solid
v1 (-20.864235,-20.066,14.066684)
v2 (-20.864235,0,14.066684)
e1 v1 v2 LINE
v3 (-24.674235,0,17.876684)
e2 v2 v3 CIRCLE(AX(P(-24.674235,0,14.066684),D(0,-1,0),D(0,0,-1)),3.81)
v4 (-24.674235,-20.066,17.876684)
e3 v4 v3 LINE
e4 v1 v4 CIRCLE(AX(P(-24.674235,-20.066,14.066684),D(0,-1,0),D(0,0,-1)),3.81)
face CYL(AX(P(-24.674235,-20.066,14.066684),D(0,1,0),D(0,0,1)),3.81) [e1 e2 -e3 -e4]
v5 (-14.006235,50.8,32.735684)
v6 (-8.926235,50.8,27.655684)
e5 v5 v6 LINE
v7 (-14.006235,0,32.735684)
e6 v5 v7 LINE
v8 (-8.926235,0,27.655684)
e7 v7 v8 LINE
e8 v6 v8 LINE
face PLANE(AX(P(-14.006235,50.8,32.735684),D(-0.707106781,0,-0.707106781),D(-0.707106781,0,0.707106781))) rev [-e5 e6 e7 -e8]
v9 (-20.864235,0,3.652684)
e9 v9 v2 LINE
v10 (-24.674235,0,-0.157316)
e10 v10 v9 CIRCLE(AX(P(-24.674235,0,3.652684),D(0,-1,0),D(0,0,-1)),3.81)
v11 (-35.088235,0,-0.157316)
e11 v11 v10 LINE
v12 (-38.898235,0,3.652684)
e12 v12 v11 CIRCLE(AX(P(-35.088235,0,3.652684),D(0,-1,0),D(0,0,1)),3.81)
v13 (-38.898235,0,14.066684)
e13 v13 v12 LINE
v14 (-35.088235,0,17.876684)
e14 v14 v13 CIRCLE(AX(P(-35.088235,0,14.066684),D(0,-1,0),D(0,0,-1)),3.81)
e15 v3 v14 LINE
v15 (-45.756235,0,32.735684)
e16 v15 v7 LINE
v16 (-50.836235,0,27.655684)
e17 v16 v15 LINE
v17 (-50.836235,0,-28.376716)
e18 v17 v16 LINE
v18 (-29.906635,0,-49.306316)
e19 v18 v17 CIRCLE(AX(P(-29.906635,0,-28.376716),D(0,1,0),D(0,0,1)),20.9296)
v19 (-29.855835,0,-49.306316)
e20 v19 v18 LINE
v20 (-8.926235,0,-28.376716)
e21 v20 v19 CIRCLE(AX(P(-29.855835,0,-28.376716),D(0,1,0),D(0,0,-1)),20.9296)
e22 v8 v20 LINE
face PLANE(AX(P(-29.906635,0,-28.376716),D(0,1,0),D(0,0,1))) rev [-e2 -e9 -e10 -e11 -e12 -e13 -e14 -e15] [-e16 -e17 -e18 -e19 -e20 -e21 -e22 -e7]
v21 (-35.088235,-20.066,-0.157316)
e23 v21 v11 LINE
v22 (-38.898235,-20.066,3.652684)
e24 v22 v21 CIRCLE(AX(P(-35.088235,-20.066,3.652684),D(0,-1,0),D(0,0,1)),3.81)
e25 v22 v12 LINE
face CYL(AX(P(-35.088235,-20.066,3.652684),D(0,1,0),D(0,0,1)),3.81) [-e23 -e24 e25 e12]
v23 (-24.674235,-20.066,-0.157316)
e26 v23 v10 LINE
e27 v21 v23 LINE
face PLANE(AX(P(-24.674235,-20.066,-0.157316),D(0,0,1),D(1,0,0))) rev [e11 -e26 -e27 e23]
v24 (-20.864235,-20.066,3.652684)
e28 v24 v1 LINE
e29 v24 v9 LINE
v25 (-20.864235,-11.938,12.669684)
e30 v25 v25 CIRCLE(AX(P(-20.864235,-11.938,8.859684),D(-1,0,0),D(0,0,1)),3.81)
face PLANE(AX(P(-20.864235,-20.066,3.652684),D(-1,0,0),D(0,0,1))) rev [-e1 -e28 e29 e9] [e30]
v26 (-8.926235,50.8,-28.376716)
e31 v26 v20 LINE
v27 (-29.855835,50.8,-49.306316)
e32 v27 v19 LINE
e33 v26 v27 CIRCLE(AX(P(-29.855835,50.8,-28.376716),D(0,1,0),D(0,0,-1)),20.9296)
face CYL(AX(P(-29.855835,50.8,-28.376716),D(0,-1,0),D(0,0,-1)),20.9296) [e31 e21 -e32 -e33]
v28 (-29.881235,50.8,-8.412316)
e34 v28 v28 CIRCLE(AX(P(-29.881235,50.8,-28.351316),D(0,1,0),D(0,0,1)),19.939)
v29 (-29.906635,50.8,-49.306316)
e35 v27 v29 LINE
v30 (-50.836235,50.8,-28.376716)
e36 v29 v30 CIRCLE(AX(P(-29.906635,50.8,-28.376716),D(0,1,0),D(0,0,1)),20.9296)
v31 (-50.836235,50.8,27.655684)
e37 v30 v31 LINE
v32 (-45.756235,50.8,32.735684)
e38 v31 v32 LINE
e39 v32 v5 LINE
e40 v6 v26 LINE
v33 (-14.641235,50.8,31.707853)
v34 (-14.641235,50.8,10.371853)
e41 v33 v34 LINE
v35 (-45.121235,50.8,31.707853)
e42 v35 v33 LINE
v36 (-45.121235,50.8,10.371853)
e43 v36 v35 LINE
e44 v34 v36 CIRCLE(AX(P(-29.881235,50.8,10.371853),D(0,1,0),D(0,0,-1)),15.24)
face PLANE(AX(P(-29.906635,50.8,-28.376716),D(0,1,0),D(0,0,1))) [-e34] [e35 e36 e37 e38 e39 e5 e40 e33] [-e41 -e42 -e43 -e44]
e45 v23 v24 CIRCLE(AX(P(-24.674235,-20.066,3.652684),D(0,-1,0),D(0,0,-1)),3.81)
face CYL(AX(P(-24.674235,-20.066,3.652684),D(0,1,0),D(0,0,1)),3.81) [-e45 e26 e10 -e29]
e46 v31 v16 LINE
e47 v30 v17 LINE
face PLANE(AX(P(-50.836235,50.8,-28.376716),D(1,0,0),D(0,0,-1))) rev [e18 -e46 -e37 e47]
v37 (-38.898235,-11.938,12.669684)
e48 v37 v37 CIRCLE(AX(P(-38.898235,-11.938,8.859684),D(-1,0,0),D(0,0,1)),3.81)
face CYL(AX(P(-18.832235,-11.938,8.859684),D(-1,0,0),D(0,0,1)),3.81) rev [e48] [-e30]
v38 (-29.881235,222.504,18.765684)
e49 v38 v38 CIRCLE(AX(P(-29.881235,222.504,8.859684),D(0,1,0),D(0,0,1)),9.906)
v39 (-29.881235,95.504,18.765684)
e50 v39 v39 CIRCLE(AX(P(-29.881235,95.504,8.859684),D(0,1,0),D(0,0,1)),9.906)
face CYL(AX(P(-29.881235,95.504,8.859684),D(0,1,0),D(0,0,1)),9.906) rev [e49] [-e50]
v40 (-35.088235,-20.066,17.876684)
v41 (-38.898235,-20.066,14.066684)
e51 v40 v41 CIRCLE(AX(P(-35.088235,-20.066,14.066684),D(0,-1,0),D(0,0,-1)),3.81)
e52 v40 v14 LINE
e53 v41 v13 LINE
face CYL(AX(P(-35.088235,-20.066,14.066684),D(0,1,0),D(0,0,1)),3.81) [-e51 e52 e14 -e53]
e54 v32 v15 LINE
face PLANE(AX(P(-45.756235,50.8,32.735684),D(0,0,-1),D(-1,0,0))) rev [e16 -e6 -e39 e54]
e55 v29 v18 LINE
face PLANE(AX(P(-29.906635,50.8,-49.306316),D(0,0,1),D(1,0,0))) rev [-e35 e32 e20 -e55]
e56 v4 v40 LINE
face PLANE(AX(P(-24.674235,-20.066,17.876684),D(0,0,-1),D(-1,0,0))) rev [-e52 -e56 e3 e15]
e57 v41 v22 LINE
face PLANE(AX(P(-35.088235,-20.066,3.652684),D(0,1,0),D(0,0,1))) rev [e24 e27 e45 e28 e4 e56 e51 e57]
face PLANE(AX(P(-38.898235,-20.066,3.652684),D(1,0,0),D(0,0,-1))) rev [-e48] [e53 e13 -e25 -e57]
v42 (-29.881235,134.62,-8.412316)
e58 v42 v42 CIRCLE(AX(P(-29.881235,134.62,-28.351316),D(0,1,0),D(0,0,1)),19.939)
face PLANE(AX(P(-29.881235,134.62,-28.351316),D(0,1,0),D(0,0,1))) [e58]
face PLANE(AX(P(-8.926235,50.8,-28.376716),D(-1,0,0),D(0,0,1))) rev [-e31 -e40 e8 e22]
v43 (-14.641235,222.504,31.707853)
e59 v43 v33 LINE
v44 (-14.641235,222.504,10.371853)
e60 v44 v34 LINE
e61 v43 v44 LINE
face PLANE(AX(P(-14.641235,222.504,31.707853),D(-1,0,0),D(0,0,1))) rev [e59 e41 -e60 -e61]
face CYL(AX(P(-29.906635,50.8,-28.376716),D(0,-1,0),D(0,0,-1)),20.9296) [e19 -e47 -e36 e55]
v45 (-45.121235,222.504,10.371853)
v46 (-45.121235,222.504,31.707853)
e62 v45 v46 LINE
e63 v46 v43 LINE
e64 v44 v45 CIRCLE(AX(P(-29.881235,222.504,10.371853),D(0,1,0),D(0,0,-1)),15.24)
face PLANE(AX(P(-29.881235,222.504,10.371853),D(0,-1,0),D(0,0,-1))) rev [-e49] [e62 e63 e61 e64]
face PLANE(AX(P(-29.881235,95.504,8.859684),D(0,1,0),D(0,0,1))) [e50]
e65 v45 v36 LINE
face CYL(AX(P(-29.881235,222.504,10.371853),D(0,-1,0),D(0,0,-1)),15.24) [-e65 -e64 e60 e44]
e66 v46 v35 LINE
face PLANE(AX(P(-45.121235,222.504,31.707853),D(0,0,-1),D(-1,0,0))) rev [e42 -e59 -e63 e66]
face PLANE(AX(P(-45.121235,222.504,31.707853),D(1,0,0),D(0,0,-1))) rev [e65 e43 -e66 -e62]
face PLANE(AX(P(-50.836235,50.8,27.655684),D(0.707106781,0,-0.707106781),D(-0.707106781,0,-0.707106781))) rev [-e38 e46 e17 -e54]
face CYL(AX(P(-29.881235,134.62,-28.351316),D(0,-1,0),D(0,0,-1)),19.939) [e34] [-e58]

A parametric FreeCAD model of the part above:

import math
import FreeCAD as App
import Part
import Sketcher
Q = App.Units.Quantity

doc = App.newDocument("Part")
body = doc.addObject("PartDesign::Body", "Body")

# Sketch on XZ plane
sketch1 = body.newObject("Sketcher::SketchObject", "Sketch")
sketch1.AttachmentSupport = (doc.getObject("XZ_Plane"), [""])
sketch1.MapMode = "FlatFace"
sketch1.addGeometry([
    Part.LineSegment(App.Vector(-50.836235, 27.655684, 0), App.Vector(-45.756235, 32.735684, 0)),  # 0
    Part.LineSegment(App.Vector(-45.756235, 32.735684, 0), App.Vector(-14.006235, 32.735684, 0)),  # 1
    Part.LineSegment(App.Vector(-14.006235, 32.735684, 0), App.Vector(-8.926235, 27.655684, 0)),  # 2
    Part.LineSegment(App.Vector(-8.926235, 27.655684, 0), App.Vector(-8.926235, -28.376716, 0)),  # 3
    Part.ArcOfCircle(Part.Circle(App.Vector(-29.855835, -28.376716, 0), App.Vector(0, 0, 1), 20.9296), math.radians(-90), math.radians(0)),  # 4
    Part.LineSegment(App.Vector(-29.855835, -49.306316, 0), App.Vector(-29.906635, -49.306316, 0)),  # 5
    Part.ArcOfCircle(Part.Circle(App.Vector(-29.906635, -28.376716, 0), App.Vector(0, 0, 1), 20.9296), math.radians(180), math.radians(270)),  # 6
    Part.LineSegment(App.Vector(-50.836235, -28.376716, 0), App.Vector(-50.836235, 27.655684, 0)),  # 7
], False)
sketch1.addConstraint([
    Sketcher.Constraint("Coincident", 0, 2, 1, 1),
    Sketcher.Constraint("Coincident", 1, 2, 2, 1),
    Sketcher.Constraint("Coincident", 2, 2, 3, 1),
    Sketcher.Constraint("Tangent", 3, 2, 4, 2),
    Sketcher.Constraint("Tangent", 4, 1, 5, 1),
    Sketcher.Constraint("Tangent", 5, 2, 6, 2),
    Sketcher.Constraint("Tangent", 6, 1, 7, 1),
    Sketcher.Constraint("Coincident", 7, 2, 0, 1),
    Sketcher.Constraint("Horizontal", 1),
    Sketcher.Constraint("Vertical", 3),
    Sketcher.Constraint("Vertical", 7),
    Sketcher.Constraint("Equal", 4, 6),
    Sketcher.Constraint("Perpendicular", 0, 2),
    Sketcher.Constraint("Horizontal", 2, 2, 7, 2),
    Sketcher.Constraint("Vertical", 6, 3, 5, 2),
    Sketcher.Constraint("Equal", 0, 2),
    Sketcher.Constraint("Radius", 4, Q("0.824 in")),
    Sketcher.Constraint("DistanceX", 1, 1, 1, 2, Q("1.25 in")),
    Sketcher.Constraint("DistanceX", 1, 2, 2, 2, Q("0.2 in")),
    Sketcher.Constraint("DistanceY", 3, 2, 3, 1, Q("2.206 in")),
    Sketcher.Constraint("DistanceX", 4, 3, -1, 1, Q("29.855835 mm")),
    Sketcher.Constraint("DistanceY", 4, 3, -1, 1, Q("28.376716 mm")),
])
pad1 = body.newObject("PartDesign::Pad", "Pad")
pad1.Profile = sketch1
pad1.Length = Q("2 in")
pad1.Reversed = True

# Sketch on XZ plane
sketch2 = body.newObject("Sketcher::SketchObject", "Sketch001")
sketch2.AttachmentSupport = (doc.getObject("XZ_Plane"), [""])
sketch2.MapMode = "FlatFace"
sketch2.AttachmentOffset = App.Placement(App.Vector(0, 0, -2 * 25.4), App.Rotation())
sketch2.addGeometry(Part.Circle(App.Vector(-29.881235, -28.351316, 0), App.Vector(0, 0, 1), 19.939), False)
sketch2.addConstraint([
    Sketcher.Constraint("Diameter", 0, Q("1.57 in")),
    Sketcher.Constraint("DistanceX", 0, 3, -1, 1, Q("29.881235 mm")),
    Sketcher.Constraint("DistanceY", 0, 3, -1, 1, Q("28.351316 mm")),
])
pad2 = body.newObject("PartDesign::Pad", "Pad001")
pad2.Profile = sketch2
pad2.Length = Q("3.3 in")
pad2.Reversed = True

# Sketch on XZ plane
sketch3 = body.newObject("Sketcher::SketchObject", "Sketch002")
sketch3.AttachmentSupport = (doc.getObject("XZ_Plane"), [""])
sketch3.MapMode = "FlatFace"
sketch3.AttachmentOffset = App.Placement(App.Vector(0, 0, -2 * 25.4), App.Rotation())
sketch3.addGeometry([
    Part.LineSegment(App.Vector(-45.121235, 31.707853, 0), App.Vector(-14.641235, 31.707853, 0)),
    Part.LineSegment(App.Vector(-14.641235, 31.707853, 0), App.Vector(-14.641235, 10.371853, 0)),
    Part.ArcOfCircle(Part.Circle(App.Vector(-29.881235, 10.371853, 0), App.Vector(0, 0, 1), 15.24), math.radians(180), math.radians(360)),
    Part.LineSegment(App.Vector(-45.121235, 10.371853, 0), App.Vector(-45.121235, 31.707853, 0)),
], False)
sketch3.addConstraint([
    Sketcher.Constraint("Coincident", 0, 2, 1, 1),
    Sketcher.Constraint("Tangent", 1, 2, 2, 2),
    Sketcher.Constraint("Tangent", 2, 1, 3, 1),
    Sketcher.Constraint("Coincident", 3, 2, 0, 1),
    Sketcher.Constraint("Horizontal", 0),
    Sketcher.Constraint("Vertical", 1),
    Sketcher.Constraint("Vertical", 3),
    Sketcher.Constraint("Radius", 2, Q("0.6 in")),
    Sketcher.Constraint("DistanceY", 1, 2, 1, 1, Q("0.84 in")),
    Sketcher.Constraint("DistanceX", 2, 3, -1, 1, Q("29.881235 mm")),
    Sketcher.Constraint("DistanceY", -1, 1, 2, 3, Q("10.371853 mm")),
])
pad3 = body.newObject("PartDesign::Pad", "Pad002")
pad3.Profile = sketch3
pad3.Length = Q("6.76 in")
pad3.Reversed = True

# Sketch on XZ plane
sketch4 = body.newObject("Sketcher::SketchObject", "Sketch003")
sketch4.AttachmentSupport = (doc.getObject("XZ_Plane"), [""])
sketch4.MapMode = "FlatFace"
sketch4.addGeometry([
    Part.LineSegment(App.Vector(-35.088235, -0.157316, 0), App.Vector(-24.674235, -0.157316, 0)),  # 0
    Part.ArcOfCircle(Part.Circle(App.Vector(-24.674235, 3.652684, 0), App.Vector(0, 0, 1), 3.81), math.radians(-90), math.radians(0)),  # 1
    Part.LineSegment(App.Vector(-20.864235, 3.652684, 0), App.Vector(-20.864235, 14.066684, 0)),  # 2
    Part.ArcOfCircle(Part.Circle(App.Vector(-24.674235, 14.066684, 0), App.Vector(0, 0, 1), 3.81), math.radians(0), math.radians(90)),  # 3
    Part.LineSegment(App.Vector(-24.674235, 17.876684, 0), App.Vector(-35.088235, 17.876684, 0)),  # 4
    Part.ArcOfCircle(Part.Circle(App.Vector(-35.088235, 14.066684, 0), App.Vector(0, 0, 1), 3.81), math.radians(90), math.radians(180)),  # 5
    Part.LineSegment(App.Vector(-38.898235, 14.066684, 0), App.Vector(-38.898235, 3.652684, 0)),  # 6
    Part.ArcOfCircle(Part.Circle(App.Vector(-35.088235, 3.652684, 0), App.Vector(0, 0, 1), 3.81), math.radians(180), math.radians(270)),  # 7
], False)
sketch4.addConstraint([
    Sketcher.Constraint("Tangent", 0, 2, 1, 1),
    Sketcher.Constraint("Tangent", 1, 2, 2, 1),
    Sketcher.Constraint("Tangent", 2, 2, 3, 1),
    Sketcher.Constraint("Tangent", 3, 2, 4, 1),
    Sketcher.Constraint("Tangent", 4, 2, 5, 1),
    Sketcher.Constraint("Tangent", 5, 2, 6, 1),
    Sketcher.Constraint("Tangent", 6, 2, 7, 1),
    Sketcher.Constraint("Tangent", 7, 2, 0, 1),
    Sketcher.Constraint("Horizontal", 0),
    Sketcher.Constraint("Vertical", 2),
    Sketcher.Constraint("Horizontal", 4),
    Sketcher.Constraint("Vertical", 6),
    Sketcher.Constraint("Equal", 1, 3),
    Sketcher.Constraint("Equal", 3, 5),
    Sketcher.Constraint("Equal", 5, 7),
    Sketcher.Constraint("Equal", 4, 2),
    Sketcher.Constraint("Radius", 1, Q("0.15 in")),
    Sketcher.Constraint("DistanceX", 0, 1, 0, 2, Q("0.41 in")),
    Sketcher.Constraint("DistanceX", 1, 3, -1, 1, Q("24.674235 mm")),
    Sketcher.Constraint("DistanceY", -1, 1, 1, 3, Q("3.652684 mm")),
])
pad4 = body.newObject("PartDesign::Pad", "Pad003")
pad4.Profile = sketch4
pad4.Length = Q("0.79 in")

# Sketch on YZ plane
sketch5 = body.newObject("Sketcher::SketchObject", "Sketch004")
sketch5.AttachmentSupport = (doc.getObject("YZ_Plane"), [""])
sketch5.MapMode = "FlatFace"
sketch5.AttachmentOffset = App.Placement(App.Vector(0, 0, -38.898235), App.Rotation())
sketch5.addGeometry(Part.Circle(App.Vector(-11.938, 8.859684, 0), App.Vector(0, 0, 1), 3.81), False)
sketch5.addConstraint([
    Sketcher.Constraint("Diameter", 0, Q("0.3 in")),
    Sketcher.Constraint("DistanceX", 0, 3, -1, 1, Q("0.47 in")),
    Sketcher.Constraint("DistanceY", -1, 1, 0, 3, Q("8.859684 mm")),
])
pocket1 = body.newObject("PartDesign::Pocket", "Pocket")
pocket1.Profile = sketch5
pocket1.Length = Q("0.79 in")
pocket1.Reversed = True

# Sketch on XZ plane
sketch6 = body.newObject("Sketcher::SketchObject", "Sketch005")
sketch6.AttachmentSupport = (doc.getObject("XZ_Plane"), [""])
sketch6.MapMode = "FlatFace"
sketch6.AttachmentOffset = App.Placement(App.Vector(0, 0, -8.76 * 25.4), App.Rotation())
sketch6.addGeometry(Part.Circle(App.Vector(-29.881235, 8.859684, 0), App.Vector(0, 0, 1), 9.906), False)
sketch6.addConstraint([
    Sketcher.Constraint("Diameter", 0, Q("0.78 in")),
    Sketcher.Constraint("DistanceX", 0, 3, -1, 1, Q("29.881235 mm")),
    Sketcher.Constraint("DistanceY", -1, 1, 0, 3, Q("8.859684 mm")),
])
pocket2 = body.newObject("PartDesign::Pocket", "Pocket001")
pocket2.Profile = sketch6
pocket2.Length = Q("5 in")
pocket2.Reversed = True

doc.recompute()
